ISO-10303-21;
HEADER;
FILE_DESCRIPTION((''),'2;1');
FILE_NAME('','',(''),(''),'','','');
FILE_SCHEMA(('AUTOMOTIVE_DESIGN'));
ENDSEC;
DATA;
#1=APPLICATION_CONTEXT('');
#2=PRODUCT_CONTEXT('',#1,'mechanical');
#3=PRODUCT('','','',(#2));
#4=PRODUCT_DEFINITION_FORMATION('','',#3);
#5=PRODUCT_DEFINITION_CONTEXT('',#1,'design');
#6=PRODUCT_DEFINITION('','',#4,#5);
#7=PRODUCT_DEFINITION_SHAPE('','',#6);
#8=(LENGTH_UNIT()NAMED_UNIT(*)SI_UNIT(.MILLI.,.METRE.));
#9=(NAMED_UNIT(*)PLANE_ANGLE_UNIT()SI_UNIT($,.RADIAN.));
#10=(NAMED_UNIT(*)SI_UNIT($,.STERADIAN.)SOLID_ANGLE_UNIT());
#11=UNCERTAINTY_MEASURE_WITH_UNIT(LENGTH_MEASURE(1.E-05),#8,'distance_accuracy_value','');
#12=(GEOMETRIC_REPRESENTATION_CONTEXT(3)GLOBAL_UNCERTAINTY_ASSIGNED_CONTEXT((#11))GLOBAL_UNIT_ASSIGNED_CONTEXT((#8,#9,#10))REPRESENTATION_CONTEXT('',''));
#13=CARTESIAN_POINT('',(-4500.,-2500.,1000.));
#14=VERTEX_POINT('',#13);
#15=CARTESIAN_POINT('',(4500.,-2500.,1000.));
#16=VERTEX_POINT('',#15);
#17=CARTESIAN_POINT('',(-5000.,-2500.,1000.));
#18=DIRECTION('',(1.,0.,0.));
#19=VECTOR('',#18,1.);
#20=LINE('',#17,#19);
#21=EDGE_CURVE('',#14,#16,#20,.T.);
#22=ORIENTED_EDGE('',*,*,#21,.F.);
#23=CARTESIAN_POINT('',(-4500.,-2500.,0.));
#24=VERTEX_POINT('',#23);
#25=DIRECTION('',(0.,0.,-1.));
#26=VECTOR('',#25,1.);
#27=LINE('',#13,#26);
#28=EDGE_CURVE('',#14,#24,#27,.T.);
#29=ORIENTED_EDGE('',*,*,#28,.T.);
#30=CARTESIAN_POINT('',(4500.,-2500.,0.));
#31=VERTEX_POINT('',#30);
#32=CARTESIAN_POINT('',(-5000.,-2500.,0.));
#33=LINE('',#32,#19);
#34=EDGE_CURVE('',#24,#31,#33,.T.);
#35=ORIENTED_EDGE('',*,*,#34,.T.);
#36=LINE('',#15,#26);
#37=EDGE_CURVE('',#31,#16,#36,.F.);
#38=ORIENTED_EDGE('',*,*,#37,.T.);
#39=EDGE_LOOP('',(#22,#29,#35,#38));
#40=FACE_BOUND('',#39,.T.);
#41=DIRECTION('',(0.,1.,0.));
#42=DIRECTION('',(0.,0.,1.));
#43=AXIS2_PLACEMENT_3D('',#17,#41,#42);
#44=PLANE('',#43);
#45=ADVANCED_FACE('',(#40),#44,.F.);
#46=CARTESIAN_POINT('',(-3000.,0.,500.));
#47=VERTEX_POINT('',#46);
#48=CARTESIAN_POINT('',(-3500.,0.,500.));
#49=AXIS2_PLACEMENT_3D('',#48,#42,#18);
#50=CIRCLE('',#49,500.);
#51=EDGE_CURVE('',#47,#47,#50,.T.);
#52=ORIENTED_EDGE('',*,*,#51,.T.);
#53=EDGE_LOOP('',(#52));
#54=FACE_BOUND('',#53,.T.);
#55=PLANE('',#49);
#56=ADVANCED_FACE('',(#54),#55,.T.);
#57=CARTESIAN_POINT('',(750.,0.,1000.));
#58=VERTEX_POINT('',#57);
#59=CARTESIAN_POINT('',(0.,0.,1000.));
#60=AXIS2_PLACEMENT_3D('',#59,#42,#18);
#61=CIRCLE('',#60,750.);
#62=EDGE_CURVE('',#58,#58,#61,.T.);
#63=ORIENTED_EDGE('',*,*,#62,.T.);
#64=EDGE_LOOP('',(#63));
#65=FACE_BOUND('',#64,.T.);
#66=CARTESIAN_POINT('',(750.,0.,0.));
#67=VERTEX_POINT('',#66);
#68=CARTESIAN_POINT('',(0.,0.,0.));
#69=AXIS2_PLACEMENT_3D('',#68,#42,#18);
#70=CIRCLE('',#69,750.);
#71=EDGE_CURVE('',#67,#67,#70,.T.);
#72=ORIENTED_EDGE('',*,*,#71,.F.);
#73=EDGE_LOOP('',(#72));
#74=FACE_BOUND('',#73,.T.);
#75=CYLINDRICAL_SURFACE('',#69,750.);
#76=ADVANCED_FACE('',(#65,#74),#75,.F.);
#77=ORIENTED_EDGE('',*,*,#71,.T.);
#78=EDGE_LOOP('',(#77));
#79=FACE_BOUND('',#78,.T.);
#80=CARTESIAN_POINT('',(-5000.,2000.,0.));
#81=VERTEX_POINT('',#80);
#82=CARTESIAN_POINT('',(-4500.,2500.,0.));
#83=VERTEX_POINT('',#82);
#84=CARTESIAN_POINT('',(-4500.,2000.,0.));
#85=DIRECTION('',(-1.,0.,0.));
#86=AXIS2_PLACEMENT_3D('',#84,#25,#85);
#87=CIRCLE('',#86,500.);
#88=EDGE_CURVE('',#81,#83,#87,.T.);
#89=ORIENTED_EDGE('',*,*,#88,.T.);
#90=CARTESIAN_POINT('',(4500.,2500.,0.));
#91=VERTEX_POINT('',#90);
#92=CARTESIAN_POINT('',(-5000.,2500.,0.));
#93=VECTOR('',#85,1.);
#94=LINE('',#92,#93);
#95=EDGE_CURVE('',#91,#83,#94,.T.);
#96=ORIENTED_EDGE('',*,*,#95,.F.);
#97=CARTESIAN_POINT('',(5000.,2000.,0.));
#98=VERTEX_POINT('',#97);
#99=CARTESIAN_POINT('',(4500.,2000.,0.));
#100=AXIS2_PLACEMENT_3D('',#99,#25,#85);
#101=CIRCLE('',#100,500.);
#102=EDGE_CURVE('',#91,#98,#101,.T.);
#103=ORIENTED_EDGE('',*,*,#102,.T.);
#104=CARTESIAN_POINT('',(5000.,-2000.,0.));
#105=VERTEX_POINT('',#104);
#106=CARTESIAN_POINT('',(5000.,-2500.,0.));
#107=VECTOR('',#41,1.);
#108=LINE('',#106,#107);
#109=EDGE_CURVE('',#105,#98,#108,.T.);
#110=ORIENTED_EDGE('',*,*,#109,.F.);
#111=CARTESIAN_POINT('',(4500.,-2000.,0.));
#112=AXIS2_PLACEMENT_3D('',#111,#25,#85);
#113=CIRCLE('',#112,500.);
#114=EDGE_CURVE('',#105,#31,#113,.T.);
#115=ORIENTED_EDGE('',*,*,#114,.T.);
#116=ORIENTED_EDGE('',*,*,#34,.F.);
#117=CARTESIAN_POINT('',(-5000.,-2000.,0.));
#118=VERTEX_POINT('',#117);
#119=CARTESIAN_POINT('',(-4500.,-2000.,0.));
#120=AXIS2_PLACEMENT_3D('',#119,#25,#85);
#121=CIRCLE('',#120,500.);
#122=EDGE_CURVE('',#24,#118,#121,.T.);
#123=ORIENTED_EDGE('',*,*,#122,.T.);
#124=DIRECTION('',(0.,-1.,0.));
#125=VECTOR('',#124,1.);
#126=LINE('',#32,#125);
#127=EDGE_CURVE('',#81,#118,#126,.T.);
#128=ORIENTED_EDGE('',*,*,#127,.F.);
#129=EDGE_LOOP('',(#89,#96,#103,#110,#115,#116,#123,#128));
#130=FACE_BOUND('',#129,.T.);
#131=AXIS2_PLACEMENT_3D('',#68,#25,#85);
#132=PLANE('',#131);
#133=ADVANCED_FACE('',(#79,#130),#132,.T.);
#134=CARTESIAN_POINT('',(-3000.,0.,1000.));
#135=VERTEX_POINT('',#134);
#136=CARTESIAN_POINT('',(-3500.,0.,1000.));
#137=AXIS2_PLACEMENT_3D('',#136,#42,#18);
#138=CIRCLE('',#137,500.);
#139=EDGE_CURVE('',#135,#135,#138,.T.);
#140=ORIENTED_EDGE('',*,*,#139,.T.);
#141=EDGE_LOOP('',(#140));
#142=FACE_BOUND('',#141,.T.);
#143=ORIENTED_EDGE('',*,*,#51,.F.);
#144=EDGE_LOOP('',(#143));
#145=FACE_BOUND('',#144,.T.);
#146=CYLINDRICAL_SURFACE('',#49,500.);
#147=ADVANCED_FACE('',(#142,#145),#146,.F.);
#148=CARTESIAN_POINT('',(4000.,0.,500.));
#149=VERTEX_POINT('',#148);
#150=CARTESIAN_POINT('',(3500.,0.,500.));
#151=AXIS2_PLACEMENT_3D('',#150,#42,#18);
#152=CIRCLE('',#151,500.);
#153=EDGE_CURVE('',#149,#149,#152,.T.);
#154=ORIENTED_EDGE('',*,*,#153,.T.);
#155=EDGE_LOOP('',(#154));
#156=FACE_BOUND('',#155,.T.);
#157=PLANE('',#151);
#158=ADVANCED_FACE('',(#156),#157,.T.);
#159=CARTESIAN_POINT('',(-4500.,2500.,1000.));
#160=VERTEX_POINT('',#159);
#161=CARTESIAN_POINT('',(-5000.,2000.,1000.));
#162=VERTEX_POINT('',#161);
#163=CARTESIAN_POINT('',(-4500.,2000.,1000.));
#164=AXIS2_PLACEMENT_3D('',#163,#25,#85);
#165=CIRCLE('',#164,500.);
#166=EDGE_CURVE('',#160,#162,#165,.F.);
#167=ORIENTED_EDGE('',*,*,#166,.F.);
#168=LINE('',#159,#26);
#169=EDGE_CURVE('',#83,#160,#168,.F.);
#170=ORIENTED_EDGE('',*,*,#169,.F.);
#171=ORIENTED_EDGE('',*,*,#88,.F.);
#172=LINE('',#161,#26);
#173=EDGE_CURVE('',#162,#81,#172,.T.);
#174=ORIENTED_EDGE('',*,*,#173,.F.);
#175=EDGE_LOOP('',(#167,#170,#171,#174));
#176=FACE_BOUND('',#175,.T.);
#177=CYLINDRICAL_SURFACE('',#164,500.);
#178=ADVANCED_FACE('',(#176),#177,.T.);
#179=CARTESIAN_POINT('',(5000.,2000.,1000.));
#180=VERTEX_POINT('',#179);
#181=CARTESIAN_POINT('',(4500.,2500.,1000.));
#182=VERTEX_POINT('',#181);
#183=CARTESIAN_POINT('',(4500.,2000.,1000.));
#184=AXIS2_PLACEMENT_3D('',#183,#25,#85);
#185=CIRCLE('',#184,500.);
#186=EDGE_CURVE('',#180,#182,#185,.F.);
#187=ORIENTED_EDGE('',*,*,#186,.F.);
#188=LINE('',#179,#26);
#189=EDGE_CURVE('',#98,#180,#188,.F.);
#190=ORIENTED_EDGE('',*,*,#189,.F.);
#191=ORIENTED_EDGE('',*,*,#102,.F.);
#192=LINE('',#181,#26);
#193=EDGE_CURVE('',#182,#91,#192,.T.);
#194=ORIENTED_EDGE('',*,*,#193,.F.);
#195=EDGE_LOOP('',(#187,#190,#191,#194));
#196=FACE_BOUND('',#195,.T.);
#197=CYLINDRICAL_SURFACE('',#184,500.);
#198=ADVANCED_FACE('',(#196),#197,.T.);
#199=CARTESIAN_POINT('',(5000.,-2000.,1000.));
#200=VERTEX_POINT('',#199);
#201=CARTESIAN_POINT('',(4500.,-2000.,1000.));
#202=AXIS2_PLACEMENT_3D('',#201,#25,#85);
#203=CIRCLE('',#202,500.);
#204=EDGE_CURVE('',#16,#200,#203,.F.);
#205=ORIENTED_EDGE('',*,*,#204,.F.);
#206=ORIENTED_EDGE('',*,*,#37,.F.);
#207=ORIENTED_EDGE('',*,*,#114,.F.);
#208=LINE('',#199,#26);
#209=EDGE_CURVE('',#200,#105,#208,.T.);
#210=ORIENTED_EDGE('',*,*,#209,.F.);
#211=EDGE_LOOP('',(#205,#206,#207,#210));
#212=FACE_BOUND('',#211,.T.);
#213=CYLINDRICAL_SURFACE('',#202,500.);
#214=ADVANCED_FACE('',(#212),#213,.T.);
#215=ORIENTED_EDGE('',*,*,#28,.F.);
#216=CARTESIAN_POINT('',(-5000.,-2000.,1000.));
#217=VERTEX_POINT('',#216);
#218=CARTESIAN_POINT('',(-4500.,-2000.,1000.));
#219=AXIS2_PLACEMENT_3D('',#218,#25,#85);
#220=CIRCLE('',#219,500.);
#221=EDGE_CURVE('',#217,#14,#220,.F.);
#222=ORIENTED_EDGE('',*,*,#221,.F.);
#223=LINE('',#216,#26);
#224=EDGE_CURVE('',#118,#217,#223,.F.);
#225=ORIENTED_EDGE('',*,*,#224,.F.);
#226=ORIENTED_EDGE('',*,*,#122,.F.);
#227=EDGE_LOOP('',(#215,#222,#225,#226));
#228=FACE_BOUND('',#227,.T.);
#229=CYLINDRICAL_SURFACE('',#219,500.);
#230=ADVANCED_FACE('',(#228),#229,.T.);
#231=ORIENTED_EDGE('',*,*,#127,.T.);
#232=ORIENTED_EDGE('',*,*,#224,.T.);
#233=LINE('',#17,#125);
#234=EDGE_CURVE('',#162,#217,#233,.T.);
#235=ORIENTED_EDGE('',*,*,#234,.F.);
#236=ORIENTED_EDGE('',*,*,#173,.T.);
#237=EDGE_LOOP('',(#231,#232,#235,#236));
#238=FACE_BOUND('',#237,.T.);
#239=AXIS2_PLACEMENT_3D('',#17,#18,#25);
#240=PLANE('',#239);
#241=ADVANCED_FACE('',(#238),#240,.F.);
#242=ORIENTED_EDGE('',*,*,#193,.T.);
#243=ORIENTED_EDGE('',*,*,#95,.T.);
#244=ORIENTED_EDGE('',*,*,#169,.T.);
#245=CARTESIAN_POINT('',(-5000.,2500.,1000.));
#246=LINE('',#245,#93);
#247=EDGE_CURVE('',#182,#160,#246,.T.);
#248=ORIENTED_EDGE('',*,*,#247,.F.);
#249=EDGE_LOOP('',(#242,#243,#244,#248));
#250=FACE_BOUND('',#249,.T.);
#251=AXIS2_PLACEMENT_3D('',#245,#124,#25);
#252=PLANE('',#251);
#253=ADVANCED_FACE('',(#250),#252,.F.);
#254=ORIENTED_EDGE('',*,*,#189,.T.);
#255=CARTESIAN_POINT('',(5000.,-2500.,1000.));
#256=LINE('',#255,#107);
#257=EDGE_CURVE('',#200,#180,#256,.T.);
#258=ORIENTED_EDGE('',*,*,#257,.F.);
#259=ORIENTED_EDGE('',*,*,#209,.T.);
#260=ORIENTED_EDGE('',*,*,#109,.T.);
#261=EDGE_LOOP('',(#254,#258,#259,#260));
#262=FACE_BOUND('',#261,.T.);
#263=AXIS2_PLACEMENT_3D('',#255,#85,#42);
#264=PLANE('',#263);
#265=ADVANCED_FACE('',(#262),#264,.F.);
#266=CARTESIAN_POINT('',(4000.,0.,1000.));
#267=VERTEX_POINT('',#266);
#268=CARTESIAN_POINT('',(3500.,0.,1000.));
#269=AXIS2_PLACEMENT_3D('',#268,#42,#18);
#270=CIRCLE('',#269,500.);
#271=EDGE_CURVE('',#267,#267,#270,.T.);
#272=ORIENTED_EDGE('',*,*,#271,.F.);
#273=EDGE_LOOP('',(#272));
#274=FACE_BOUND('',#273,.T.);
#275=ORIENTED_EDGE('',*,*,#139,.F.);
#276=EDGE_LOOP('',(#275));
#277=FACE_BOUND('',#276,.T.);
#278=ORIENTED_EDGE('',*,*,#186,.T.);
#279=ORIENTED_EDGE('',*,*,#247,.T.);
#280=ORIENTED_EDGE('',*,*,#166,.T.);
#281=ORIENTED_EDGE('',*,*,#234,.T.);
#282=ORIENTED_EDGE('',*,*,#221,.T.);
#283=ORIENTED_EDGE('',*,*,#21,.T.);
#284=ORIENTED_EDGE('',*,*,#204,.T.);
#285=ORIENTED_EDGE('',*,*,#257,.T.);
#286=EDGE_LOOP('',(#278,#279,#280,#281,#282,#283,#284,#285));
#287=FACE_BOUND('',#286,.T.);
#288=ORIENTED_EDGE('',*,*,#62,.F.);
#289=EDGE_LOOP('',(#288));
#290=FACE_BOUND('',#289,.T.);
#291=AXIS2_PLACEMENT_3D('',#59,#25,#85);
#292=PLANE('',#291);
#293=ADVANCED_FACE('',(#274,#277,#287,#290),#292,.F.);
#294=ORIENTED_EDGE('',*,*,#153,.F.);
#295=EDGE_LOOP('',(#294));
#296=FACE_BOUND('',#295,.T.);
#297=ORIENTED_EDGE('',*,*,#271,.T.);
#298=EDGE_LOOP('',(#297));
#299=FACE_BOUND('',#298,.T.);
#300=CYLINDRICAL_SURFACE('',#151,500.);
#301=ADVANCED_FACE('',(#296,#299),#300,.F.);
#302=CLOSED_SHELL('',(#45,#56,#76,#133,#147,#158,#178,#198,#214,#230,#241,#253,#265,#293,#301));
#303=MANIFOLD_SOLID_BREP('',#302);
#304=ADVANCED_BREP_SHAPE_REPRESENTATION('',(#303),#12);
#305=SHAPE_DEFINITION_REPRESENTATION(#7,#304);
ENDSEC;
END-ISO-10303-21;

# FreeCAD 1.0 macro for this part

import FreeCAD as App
import Part
import Sketcher
from FreeCAD import Vector
Q = App.Units.Quantity


def edges_at(feature, points):
    """Names of the edges that pass closest to the given points."""
    edges = feature.Shape.Edges
    near = lambda p: min(range(len(edges)), key=lambda i: edges[i].distToShape(Part.Vertex(*p))[0])
    return sorted({f"Edge{near(p) + 1}" for p in points})


def add_polygon(sketch, points):
    """Adds a closed chain of lines whose ends are joined by coincident constraints."""
    first, n = sketch.GeometryCount, len(points)
    for a, b in zip(points, points[1:] + points[:1]):
        sketch.addGeometry(Part.LineSegment(App.Vector(*a, 0), App.Vector(*b, 0)), False)
    for i in range(n):
        sketch.addConstraint(Sketcher.Constraint("Coincident", first + i, 2, first + (i + 1) % n, 1))

doc = App.newDocument("Part")
body = doc.addObject("PartDesign::Body", "Body")

# Sketch on XY plane
sketch1 = body.newObject("Sketcher::SketchObject", "Sketch")
sketch1.AttachmentSupport = (doc.getObject("XY_Plane"), [""])
sketch1.MapMode = "FlatFace"
add_polygon(sketch1, [(-5000, 2500), (-5000, -2500), (5000, -2500), (5000, 2500)])  # lines 0-3
sketch1.addConstraint([
    Sketcher.Constraint("Vertical", 0),
    Sketcher.Constraint("Horizontal", 1),
    Sketcher.Constraint("Vertical", 2),
    Sketcher.Constraint("Horizontal", 3),
    Sketcher.Constraint("Symmetric", 0, 2, 2, 2, -1, 1),
    Sketcher.Constraint("DistanceX", 1, 1, 1, 2, Q("10000 mm")),
    Sketcher.Constraint("DistanceY", 0, 2, 0, 1, Q("5000 mm")),
])
pad1 = body.newObject("PartDesign::Pad", "Pad")
pad1.Profile = sketch1
pad1.Length = 1000
doc.recompute()

fillet = body.newObject("PartDesign::Fillet", "Fillet")
fillet.Base = (pad1, edges_at(pad1, [(-5000, 2500, 500)]))
fillet.Radius = 500
doc.recompute()

fillet2 = body.newObject("PartDesign::Fillet", "Fillet001")
fillet2.Base = (fillet, edges_at(fillet, [(5000, -2500, 500), (-5000, -2500, 500), (5000, 2500, 500)]))
fillet2.Radius = 500

# Sketch on XY plane
sketch2 = body.newObject("Sketcher::SketchObject", "Sketch001")
sketch2.AttachmentSupport = (doc.getObject("XY_Plane"), [""])
sketch2.MapMode = "FlatFace"
sketch2.AttachmentOffset = App.Placement(Vector(0, 0, 1000), App.Rotation())
sketch2.addGeometry([
    Part.Circle(Vector(-3500, 0, 0), Vector(0, 0, 1), 500),
    Part.Circle(Vector(3500, 0, 0), Vector(0, 0, 1), 500),
], False)
sketch2.addConstraint([
    Sketcher.Constraint("Equal", 0, 1),
    Sketcher.Constraint("Symmetric", 0, 3, 1, 3, -1, 1),
    Sketcher.Constraint("PointOnObject", 0, 3, -1),
    Sketcher.Constraint("Diameter", 0, Q("1000 mm")),
    Sketcher.Constraint("DistanceX", 0, 3, -1, 1, Q("3500 mm")),
])
pocket1 = body.newObject("PartDesign::Pocket", "Pocket")
pocket1.Profile = sketch2
pocket1.Length = 500

# Sketch on XY plane
sketch3 = body.newObject("Sketcher::SketchObject", "Sketch002")
sketch3.AttachmentSupport = (doc.getObject("XY_Plane"), [""])
sketch3.MapMode = "FlatFace"
sketch3.AttachmentOffset = App.Placement(Vector(0, 0, 1000), App.Rotation())
sketch3.addGeometry(Part.Circle(Vector(0, 0, 0), Vector(0, 0, 1), 750), False)
sketch3.addConstraint([
    Sketcher.Constraint("Coincident", 0, 3, -1, 1),
    Sketcher.Constraint("Diameter", 0, Q("1500 mm")),
])
pocket2 = body.newObject("PartDesign::Pocket", "Pocket001")
pocket2.Profile = sketch3
pocket2.Type = "ThroughAll"

doc.recompute()
